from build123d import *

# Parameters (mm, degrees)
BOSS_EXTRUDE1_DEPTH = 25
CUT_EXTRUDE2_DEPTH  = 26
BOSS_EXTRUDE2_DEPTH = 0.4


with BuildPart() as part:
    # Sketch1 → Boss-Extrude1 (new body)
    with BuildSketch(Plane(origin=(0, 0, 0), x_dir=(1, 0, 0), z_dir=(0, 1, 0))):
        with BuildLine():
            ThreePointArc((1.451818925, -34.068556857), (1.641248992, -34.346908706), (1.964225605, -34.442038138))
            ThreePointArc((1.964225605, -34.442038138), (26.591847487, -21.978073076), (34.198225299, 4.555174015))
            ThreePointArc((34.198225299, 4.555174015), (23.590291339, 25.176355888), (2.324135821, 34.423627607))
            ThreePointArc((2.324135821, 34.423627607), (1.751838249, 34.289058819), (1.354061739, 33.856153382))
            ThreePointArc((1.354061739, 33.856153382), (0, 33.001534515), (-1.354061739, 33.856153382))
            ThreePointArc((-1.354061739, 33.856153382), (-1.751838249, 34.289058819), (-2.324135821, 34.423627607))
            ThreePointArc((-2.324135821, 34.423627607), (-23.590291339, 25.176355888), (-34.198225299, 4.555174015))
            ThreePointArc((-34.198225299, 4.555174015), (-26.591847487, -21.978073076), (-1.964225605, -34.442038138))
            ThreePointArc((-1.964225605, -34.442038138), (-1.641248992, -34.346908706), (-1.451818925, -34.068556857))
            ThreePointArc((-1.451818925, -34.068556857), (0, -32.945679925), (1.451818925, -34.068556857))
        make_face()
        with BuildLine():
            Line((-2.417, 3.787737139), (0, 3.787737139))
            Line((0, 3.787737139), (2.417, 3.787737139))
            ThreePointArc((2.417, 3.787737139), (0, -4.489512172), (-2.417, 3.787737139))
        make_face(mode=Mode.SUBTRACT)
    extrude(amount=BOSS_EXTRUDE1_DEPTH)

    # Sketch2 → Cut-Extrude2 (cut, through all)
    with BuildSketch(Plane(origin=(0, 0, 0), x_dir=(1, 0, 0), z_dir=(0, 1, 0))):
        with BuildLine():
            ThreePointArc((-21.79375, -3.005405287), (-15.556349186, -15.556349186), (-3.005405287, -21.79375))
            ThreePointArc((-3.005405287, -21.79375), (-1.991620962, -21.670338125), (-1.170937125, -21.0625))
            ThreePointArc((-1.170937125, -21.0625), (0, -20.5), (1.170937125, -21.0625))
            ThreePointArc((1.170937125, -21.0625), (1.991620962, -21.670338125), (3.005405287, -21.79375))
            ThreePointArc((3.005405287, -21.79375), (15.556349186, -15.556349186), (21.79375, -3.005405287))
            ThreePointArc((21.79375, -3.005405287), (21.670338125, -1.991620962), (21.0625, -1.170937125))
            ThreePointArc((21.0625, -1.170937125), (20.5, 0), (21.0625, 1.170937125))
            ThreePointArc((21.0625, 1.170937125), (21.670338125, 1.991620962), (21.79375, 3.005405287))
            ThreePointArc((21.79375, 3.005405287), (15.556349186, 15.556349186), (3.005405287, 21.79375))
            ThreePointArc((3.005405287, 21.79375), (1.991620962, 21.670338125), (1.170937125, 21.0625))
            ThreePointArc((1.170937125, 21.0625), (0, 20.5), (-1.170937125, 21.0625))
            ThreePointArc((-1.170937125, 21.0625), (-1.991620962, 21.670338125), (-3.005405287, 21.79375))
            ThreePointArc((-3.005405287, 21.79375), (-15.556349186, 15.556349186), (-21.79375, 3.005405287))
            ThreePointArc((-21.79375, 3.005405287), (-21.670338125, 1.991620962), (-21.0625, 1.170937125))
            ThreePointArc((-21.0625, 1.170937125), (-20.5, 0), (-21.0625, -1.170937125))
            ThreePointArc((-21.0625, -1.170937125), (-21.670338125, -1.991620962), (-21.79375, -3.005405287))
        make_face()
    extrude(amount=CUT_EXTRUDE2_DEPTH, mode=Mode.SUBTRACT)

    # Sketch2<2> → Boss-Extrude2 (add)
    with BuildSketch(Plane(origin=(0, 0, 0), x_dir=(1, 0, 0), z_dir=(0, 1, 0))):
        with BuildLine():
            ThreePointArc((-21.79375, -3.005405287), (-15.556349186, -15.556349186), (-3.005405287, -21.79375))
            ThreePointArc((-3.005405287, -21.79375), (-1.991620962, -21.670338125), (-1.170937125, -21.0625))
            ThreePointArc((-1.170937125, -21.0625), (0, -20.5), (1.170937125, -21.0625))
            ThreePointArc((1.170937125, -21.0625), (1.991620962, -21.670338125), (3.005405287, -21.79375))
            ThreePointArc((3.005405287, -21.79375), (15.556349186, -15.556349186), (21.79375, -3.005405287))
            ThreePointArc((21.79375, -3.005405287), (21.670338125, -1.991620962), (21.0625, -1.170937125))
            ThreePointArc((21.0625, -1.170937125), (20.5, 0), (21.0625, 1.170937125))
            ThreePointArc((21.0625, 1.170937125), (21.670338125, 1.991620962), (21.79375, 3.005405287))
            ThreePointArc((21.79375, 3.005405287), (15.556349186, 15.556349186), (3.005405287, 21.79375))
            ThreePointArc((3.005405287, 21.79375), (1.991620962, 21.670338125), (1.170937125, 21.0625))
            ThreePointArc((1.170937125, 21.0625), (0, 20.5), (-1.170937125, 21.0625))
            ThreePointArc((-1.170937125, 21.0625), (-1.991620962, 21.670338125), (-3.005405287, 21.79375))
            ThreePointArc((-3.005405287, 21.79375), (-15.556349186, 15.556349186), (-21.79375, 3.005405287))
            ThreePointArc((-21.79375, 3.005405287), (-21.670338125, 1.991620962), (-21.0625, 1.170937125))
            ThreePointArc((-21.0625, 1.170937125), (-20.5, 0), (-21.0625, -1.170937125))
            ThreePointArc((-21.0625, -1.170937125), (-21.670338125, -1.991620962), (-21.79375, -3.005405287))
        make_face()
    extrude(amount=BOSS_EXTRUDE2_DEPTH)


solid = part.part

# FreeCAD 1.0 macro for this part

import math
import FreeCAD as App
import Part
import Sketcher
from FreeCAD import Vector
Q = App.Units.Quantity

doc = App.newDocument("Part")
body = doc.addObject("PartDesign::Body", "Body")

# Sketch on XZ plane
sketch1 = doc.addObject("Sketcher::SketchObject", "Sketch")
body.addObject(sketch1)
sketch1.AttachmentSupport = (doc.XZ_Plane, [""])
sketch1.MapMode = "FlatFace"
sketch1.addGeometry([
    Part.ArcOfCircle(Part.Circle(Vector(1.9, 33.9, 0), Vector(0, 0, 1), 0.5), math.radians(87), math.radians(165)),  # 0
    Part.ArcOfCircle(Part.Circle(Vector(0, 0, 0), Vector(0, 0, 1), 34.5), math.radians(-8), math.radians(87)),  # 1
    Part.ArcOfCircle(Part.Circle(Vector(0, 0, 0), Vector(0, 0, 1), 34.5), math.radians(-86), math.radians(-8)),  # 2
    Part.ArcOfCircle(Part.Circle(Vector(2.3, -33.4, 0), Vector(0, 0, 1), 1), math.radians(-155), math.radians(-86)),  # 3
    Part.ArcOfCircle(Part.Circle(Vector(0, -34.5, 0), Vector(0, 0, 1), 1.5), math.radians(25), math.radians(155)),  # 4
    Part.ArcOfCircle(Part.Circle(Vector(-2.3, -33.4, 0), Vector(0, 0, 1), 1), math.radians(-94), math.radians(-25)),  # 5
    Part.ArcOfCircle(Part.Circle(Vector(0, 0, 0), Vector(0, 0, 1), 34.5), math.radians(-172), math.radians(-94)),  # 6
    Part.ArcOfCircle(Part.Circle(Vector(0, 0, 0), Vector(0, 0, 1), 34.5), math.radians(93), math.radians(188)),  # 7
    Part.ArcOfCircle(Part.Circle(Vector(-1.9, 33.9, 0), Vector(0, 0, 1), 0.5), math.radians(15), math.radians(93)),  # 8
    Part.ArcOfCircle(Part.Circle(Vector(0, 34.4, 0), Vector(0, 0, 1), 1.5), math.radians(-165), math.radians(-15)),  # 9
    Part.ArcOfCircle(Part.Circle(Vector(0, 0, 0), Vector(0, 0, 1), 4.5), math.radians(-57), math.radians(237)),  # 10
    Part.LineSegment(Vector(-2.4, -3.8, 0), Vector(2.4, -3.8, 0)),  # 11
], False)
sketch1.addConstraint([
    Sketcher.Constraint("Tangent", 0, 1, 1, 2),
    Sketcher.Constraint("Tangent", 1, 1, 2, 2),
    Sketcher.Constraint("Tangent", 2, 1, 3, 2),
    Sketcher.Constraint("Tangent", 3, 1, 4, 1),
    Sketcher.Constraint("Tangent", 4, 2, 5, 2),
    Sketcher.Constraint("Tangent", 5, 1, 6, 2),
    Sketcher.Constraint("Tangent", 6, 1, 7, 2),
    Sketcher.Constraint("Tangent", 7, 1, 8, 2),
    Sketcher.Constraint("Tangent", 8, 1, 9, 1),
    Sketcher.Constraint("Tangent", 9, 2, 0, 2),
    Sketcher.Constraint("Coincident", 10, 1, 11, 2),
    Sketcher.Constraint("Coincident", 11, 1, 10, 2),
    Sketcher.Constraint("Horizontal", 11),
    Sketcher.Constraint("Coincident", 6, 3, 1, 3),
    Sketcher.Constraint("Coincident", 10, 3, 1, 3),
    Sketcher.Constraint("Equal", 1, 2),
    Sketcher.Constraint("Equal", 3, 5),
    Sketcher.Constraint("Equal", 2, 6),
    Sketcher.Constraint("Equal", 6, 7),
    Sketcher.Constraint("Equal", 0, 8),
    Sketcher.Constraint("Equal", 4, 9),
    Sketcher.Constraint("Symmetric", 3, 3, 5, 3, -2),
    Sketcher.Constraint("PointOnObject", 9, 3, -2),
    Sketcher.Constraint("Horizontal", 1, 1, 6, 1),
    Sketcher.Constraint("Radius", 3, Q("1 mm")),
    Sketcher.Constraint("Radius", 0, Q("0.5 mm")),
    Sketcher.Constraint("Radius", 1, Q("34.5 mm")),
    Sketcher.Constraint("Radius", 4, Q("1.5 mm")),
    Sketcher.Constraint("DistanceX", 11, 1, 11, 2, Q("4.834 mm")),
    Sketcher.Constraint("DistanceY", 1, 3, -1, 1, Q("0.002001 mm")),
    Sketcher.Constraint("Radius", 10, Q("4.491513 mm")),
    Sketcher.Constraint("DistanceY", 3, 3, -1, 1, Q("33.425899 mm")),
    Sketcher.Constraint("DistanceX", -1, 1, 0, 3, Q("1.935759 mm")),
    Sketcher.Constraint("DistanceX", -1, 1, 1, 1, Q("34.198225 mm")),
])
pad1 = doc.addObject("PartDesign::Pad", "Pad")
body.addObject(pad1)
pad1.Profile = sketch1
pad1.Length = 25
pad1.Reversed = True

# Sketch on XZ plane
sketch2 = doc.addObject("Sketcher::SketchObject", "Sketch001")
body.addObject(sketch2)
sketch2.AttachmentSupport = (doc.XZ_Plane, [""])
sketch2.MapMode = "FlatFace"
sketch2.addGeometry([
    Part.ArcOfCircle(Part.Circle(Vector(0, 0, 0), Vector(0, 0, 1), 22), math.radians(98), math.radians(172)),  # 0
    Part.ArcOfCircle(Part.Circle(Vector(-2.7, 19.8, 0), Vector(0, 0, 1), 2), math.radians(39), math.radians(98)),  # 1
    Part.ArcOfCircle(Part.Circle(Vector(0, 22, 0), Vector(0, 0, 1), 1.5), math.radians(-141), math.radians(-39)),  # 2
    Part.ArcOfCircle(Part.Circle(Vector(2.7, 19.8, 0), Vector(0, 0, 1), 2), math.radians(82), math.radians(141)),  # 3
    Part.ArcOfCircle(Part.Circle(Vector(0, 0, 0), Vector(0, 0, 1), 22), math.radians(8), math.radians(82)),  # 4
    Part.ArcOfCircle(Part.Circle(Vector(19.8, 2.7, 0), Vector(0, 0, 1), 2), math.radians(-51), math.radians(8)),  # 5
    Part.ArcOfCircle(Part.Circle(Vector(22, 0, 0), Vector(0, 0, 1), 1.5), math.radians(129), math.radians(231)),  # 6
    Part.ArcOfCircle(Part.Circle(Vector(19.8, -2.7, 0), Vector(0, 0, 1), 2), math.radians(-8), math.radians(51)),  # 7
    Part.ArcOfCircle(Part.Circle(Vector(0, 0, 0), Vector(0, 0, 1), 22), math.radians(-82), math.radians(-8)),  # 8
    Part.ArcOfCircle(Part.Circle(Vector(2.7, -19.8, 0), Vector(0, 0, 1), 2), math.radians(-141), math.radians(-82)),  # 9
    Part.ArcOfCircle(Part.Circle(Vector(0, -22, 0), Vector(0, 0, 1), 1.5), math.radians(39), math.radians(141)),  # 10
    Part.ArcOfCircle(Part.Circle(Vector(-2.7, -19.8, 0), Vector(0, 0, 1), 2), math.radians(-98), math.radians(-39)),  # 11
    Part.ArcOfCircle(Part.Circle(Vector(0, 0, 0), Vector(0, 0, 1), 22), math.radians(-172), math.radians(-98)),  # 12
    Part.ArcOfCircle(Part.Circle(Vector(-19.8, -2.7, 0), Vector(0, 0, 1), 2), math.radians(129), math.radians(188)),  # 13
    Part.ArcOfCircle(Part.Circle(Vector(-22, 0, 0), Vector(0, 0, 1), 1.5), math.radians(-51), math.radians(51)),  # 14
    Part.ArcOfCircle(Part.Circle(Vector(-19.8, 2.7, 0), Vector(0, 0, 1), 2), math.radians(172), math.radians(231)),  # 15
], False)
sketch2.addConstraint([
    Sketcher.Constraint("Tangent", 0, 1, 1, 2),
    Sketcher.Constraint("Tangent", 1, 1, 2, 1),
    Sketcher.Constraint("Tangent", 2, 2, 3, 2),
    Sketcher.Constraint("Tangent", 3, 1, 4, 2),
    Sketcher.Constraint("Tangent", 4, 1, 5, 2),
    Sketcher.Constraint("Tangent", 5, 1, 6, 1),
    Sketcher.Constraint("Tangent", 6, 2, 7, 2),
    Sketcher.Constraint("Tangent", 7, 1, 8, 2),
    Sketcher.Constraint("Tangent", 8, 1, 9, 2),
    Sketcher.Constraint("Tangent", 9, 1, 10, 1),
    Sketcher.Constraint("Tangent", 10, 2, 11, 2),
    Sketcher.Constraint("Tangent", 11, 1, 12, 2),
    Sketcher.Constraint("Tangent", 12, 1, 13, 2),
    Sketcher.Constraint("Tangent", 13, 1, 14, 1),
    Sketcher.Constraint("Tangent", 14, 2, 15, 2),
    Sketcher.Constraint("Tangent", 15, 1, 0, 2),
    Sketcher.Constraint("Coincident", 0, 3, -1, 1),
    Sketcher.Constraint("Coincident", 4, 3, -1, 1),
    Sketcher.Constraint("Coincident", 8, 3, -1, 1),
    Sketcher.Constraint("Coincident", 12, 3, -1, 1),
    Sketcher.Constraint("Equal", 1, 3),
    Sketcher.Constraint("Equal", 0, 4),
    Sketcher.Constraint("Equal", 3, 5),
    Sketcher.Constraint("Equal", 2, 6),
    Sketcher.Constraint("Equal", 5, 7),
    Sketcher.Constraint("Equal", 4, 8),
    Sketcher.Constraint("Equal", 7, 9),
    Sketcher.Constraint("Equal", 6, 10),
    Sketcher.Constraint("Equal", 9, 11),
    Sketcher.Constraint("Equal", 8, 12),
    Sketcher.Constraint("Equal", 11, 13),
    Sketcher.Constraint("Equal", 10, 14),
    Sketcher.Constraint("Equal", 13, 15),
    Sketcher.Constraint("Symmetric", 2, 3, 10, 3, -1, 1),
    Sketcher.Constraint("Symmetric", 6, 3, 14, 3, -1, 1),
    Sketcher.Constraint("PointOnObject", 2, 3, -2),
    Sketcher.Constraint("PointOnObject", 6, 3, -1),
    Sketcher.Constraint("Radius", 0, Q("22 mm")),
    Sketcher.Constraint("Radius", 1, Q("2 mm")),
    Sketcher.Constraint("Radius", 2, Q("1.5 mm")),
    Sketcher.Constraint("DistanceY", -1, 1, 2, 3, Q("22 mm")),
    Sketcher.Constraint("DistanceX", -1, 1, 6, 3, Q("22 mm")),
])
pocket1 = doc.addObject("PartDesign::Pocket", "Pocket")
body.addObject(pocket1)
pocket1.Profile = sketch2
pocket1.Type = "ThroughAll"

# Sketch on XZ plane
sketch3 = doc.addObject("Sketcher::SketchObject", "Sketch002")
body.addObject(sketch3)
sketch3.AttachmentSupport = (doc.XZ_Plane, [""])
sketch3.MapMode = "FlatFace"
sketch3.addGeometry([
    Part.ArcOfCircle(Part.Circle(Vector(0, 0, 0), Vector(0, 0, 1), 22), math.radians(98), math.radians(172)),  # 0
    Part.ArcOfCircle(Part.Circle(Vector(-2.7, 19.8, 0), Vector(0, 0, 1), 2), math.radians(39), math.radians(98)),  # 1
    Part.ArcOfCircle(Part.Circle(Vector(0, 22, 0), Vector(0, 0, 1), 1.5), math.radians(-141), math.radians(-39)),  # 2
    Part.ArcOfCircle(Part.Circle(Vector(2.7, 19.8, 0), Vector(0, 0, 1), 2), math.radians(82), math.radians(141)),  # 3
    Part.ArcOfCircle(Part.Circle(Vector(0, 0, 0), Vector(0, 0, 1), 22), math.radians(8), math.radians(82)),  # 4
    Part.ArcOfCircle(Part.Circle(Vector(19.8, 2.7, 0), Vector(0, 0, 1), 2), math.radians(-51), math.radians(8)),  # 5
    Part.ArcOfCircle(Part.Circle(Vector(22, 0, 0), Vector(0, 0, 1), 1.5), math.radians(129), math.radians(231)),  # 6
    Part.ArcOfCircle(Part.Circle(Vector(19.8, -2.7, 0), Vector(0, 0, 1), 2), math.radians(-8), math.radians(51)),  # 7
    Part.ArcOfCircle(Part.Circle(Vector(0, 0, 0), Vector(0, 0, 1), 22), math.radians(-82), math.radians(-8)),  # 8
    Part.ArcOfCircle(Part.Circle(Vector(2.7, -19.8, 0), Vector(0, 0, 1), 2), math.radians(-141), math.radians(-82)),  # 9
    Part.ArcOfCircle(Part.Circle(Vector(0, -22, 0), Vector(0, 0, 1), 1.5), math.radians(39), math.radians(141)),  # 10
    Part.ArcOfCircle(Part.Circle(Vector(-2.7, -19.8, 0), Vector(0, 0, 1), 2), math.radians(-98), math.radians(-39)),  # 11
    Part.ArcOfCircle(Part.Circle(Vector(0, 0, 0), Vector(0, 0, 1), 22), math.radians(-172), math.radians(-98)),  # 12
    Part.ArcOfCircle(Part.Circle(Vector(-19.8, -2.7, 0), Vector(0, 0, 1), 2), math.radians(129), math.radians(188)),  # 13
    Part.ArcOfCircle(Part.Circle(Vector(-22, 0, 0), Vector(0, 0, 1), 1.5), math.radians(-51), math.radians(51)),  # 14
    Part.ArcOfCircle(Part.Circle(Vector(-19.8, 2.7, 0), Vector(0, 0, 1), 2), math.radians(172), math.radians(231)),  # 15
], False)
sketch3.addConstraint([
    Sketcher.Constraint("Tangent", 0, 1, 1, 2),
    Sketcher.Constraint("Tangent", 1, 1, 2, 1),
    Sketcher.Constraint("Tangent", 2, 2, 3, 2),
    Sketcher.Constraint("Tangent", 3, 1, 4, 2),
    Sketcher.Constraint("Tangent", 4, 1, 5, 2),
    Sketcher.Constraint("Tangent", 5, 1, 6, 1),
    Sketcher.Constraint("Tangent", 6, 2, 7, 2),
    Sketcher.Constraint("Tangent", 7, 1, 8, 2),
    Sketcher.Constraint("Tangent", 8, 1, 9, 2),
    Sketcher.Constraint("Tangent", 9, 1, 10, 1),
    Sketcher.Constraint("Tangent", 10, 2, 11, 2),
    Sketcher.Constraint("Tangent", 11, 1, 12, 2),
    Sketcher.Constraint("Tangent", 12, 1, 13, 2),
    Sketcher.Constraint("Tangent", 13, 1, 14, 1),
    Sketcher.Constraint("Tangent", 14, 2, 15, 2),
    Sketcher.Constraint("Tangent", 15, 1, 0, 2),
    Sketcher.Constraint("Coincident", 0, 3, -1, 1),
    Sketcher.Constraint("Coincident", 4, 3, -1, 1),
    Sketcher.Constraint("Coincident", 8, 3, -1, 1),
    Sketcher.Constraint("Coincident", 12, 3, -1, 1),
    Sketcher.Constraint("Equal", 1, 3),
    Sketcher.Constraint("Equal", 0, 4),
    Sketcher.Constraint("Equal", 3, 5),
    Sketcher.Constraint("Equal", 2, 6),
    Sketcher.Constraint("Equal", 5, 7),
    Sketcher.Constraint("Equal", 4, 8),
    Sketcher.Constraint("Equal", 7, 9),
    Sketcher.Constraint("Equal", 6, 10),
    Sketcher.Constraint("Equal", 9, 11),
    Sketcher.Constraint("Equal", 8, 12),
    Sketcher.Constraint("Equal", 11, 13),
    Sketcher.Constraint("Equal", 10, 14),
    Sketcher.Constraint("Equal", 13, 15),
    Sketcher.Constraint("Symmetric", 2, 3, 10, 3, -1, 1),
    Sketcher.Constraint("Symmetric", 6, 3, 14, 3, -1, 1),
    Sketcher.Constraint("PointOnObject", 2, 3, -2),
    Sketcher.Constraint("PointOnObject", 6, 3, -1),
    Sketcher.Constraint("Radius", 0, Q("22 mm")),
    Sketcher.Constraint("Radius", 1, Q("2 mm")),
    Sketcher.Constraint("Radius", 2, Q("1.5 mm")),
    Sketcher.Constraint("DistanceY", -1, 1, 2, 3, Q("22 mm")),
    Sketcher.Constraint("DistanceX", -1, 1, 6, 3, Q("22 mm")),
])
pad2 = doc.addObject("PartDesign::Pad", "Pad001")
body.addObject(pad2)
pad2.Profile = sketch3
pad2.Length = 0.4
pad2.Reversed = True

doc.recompute()
